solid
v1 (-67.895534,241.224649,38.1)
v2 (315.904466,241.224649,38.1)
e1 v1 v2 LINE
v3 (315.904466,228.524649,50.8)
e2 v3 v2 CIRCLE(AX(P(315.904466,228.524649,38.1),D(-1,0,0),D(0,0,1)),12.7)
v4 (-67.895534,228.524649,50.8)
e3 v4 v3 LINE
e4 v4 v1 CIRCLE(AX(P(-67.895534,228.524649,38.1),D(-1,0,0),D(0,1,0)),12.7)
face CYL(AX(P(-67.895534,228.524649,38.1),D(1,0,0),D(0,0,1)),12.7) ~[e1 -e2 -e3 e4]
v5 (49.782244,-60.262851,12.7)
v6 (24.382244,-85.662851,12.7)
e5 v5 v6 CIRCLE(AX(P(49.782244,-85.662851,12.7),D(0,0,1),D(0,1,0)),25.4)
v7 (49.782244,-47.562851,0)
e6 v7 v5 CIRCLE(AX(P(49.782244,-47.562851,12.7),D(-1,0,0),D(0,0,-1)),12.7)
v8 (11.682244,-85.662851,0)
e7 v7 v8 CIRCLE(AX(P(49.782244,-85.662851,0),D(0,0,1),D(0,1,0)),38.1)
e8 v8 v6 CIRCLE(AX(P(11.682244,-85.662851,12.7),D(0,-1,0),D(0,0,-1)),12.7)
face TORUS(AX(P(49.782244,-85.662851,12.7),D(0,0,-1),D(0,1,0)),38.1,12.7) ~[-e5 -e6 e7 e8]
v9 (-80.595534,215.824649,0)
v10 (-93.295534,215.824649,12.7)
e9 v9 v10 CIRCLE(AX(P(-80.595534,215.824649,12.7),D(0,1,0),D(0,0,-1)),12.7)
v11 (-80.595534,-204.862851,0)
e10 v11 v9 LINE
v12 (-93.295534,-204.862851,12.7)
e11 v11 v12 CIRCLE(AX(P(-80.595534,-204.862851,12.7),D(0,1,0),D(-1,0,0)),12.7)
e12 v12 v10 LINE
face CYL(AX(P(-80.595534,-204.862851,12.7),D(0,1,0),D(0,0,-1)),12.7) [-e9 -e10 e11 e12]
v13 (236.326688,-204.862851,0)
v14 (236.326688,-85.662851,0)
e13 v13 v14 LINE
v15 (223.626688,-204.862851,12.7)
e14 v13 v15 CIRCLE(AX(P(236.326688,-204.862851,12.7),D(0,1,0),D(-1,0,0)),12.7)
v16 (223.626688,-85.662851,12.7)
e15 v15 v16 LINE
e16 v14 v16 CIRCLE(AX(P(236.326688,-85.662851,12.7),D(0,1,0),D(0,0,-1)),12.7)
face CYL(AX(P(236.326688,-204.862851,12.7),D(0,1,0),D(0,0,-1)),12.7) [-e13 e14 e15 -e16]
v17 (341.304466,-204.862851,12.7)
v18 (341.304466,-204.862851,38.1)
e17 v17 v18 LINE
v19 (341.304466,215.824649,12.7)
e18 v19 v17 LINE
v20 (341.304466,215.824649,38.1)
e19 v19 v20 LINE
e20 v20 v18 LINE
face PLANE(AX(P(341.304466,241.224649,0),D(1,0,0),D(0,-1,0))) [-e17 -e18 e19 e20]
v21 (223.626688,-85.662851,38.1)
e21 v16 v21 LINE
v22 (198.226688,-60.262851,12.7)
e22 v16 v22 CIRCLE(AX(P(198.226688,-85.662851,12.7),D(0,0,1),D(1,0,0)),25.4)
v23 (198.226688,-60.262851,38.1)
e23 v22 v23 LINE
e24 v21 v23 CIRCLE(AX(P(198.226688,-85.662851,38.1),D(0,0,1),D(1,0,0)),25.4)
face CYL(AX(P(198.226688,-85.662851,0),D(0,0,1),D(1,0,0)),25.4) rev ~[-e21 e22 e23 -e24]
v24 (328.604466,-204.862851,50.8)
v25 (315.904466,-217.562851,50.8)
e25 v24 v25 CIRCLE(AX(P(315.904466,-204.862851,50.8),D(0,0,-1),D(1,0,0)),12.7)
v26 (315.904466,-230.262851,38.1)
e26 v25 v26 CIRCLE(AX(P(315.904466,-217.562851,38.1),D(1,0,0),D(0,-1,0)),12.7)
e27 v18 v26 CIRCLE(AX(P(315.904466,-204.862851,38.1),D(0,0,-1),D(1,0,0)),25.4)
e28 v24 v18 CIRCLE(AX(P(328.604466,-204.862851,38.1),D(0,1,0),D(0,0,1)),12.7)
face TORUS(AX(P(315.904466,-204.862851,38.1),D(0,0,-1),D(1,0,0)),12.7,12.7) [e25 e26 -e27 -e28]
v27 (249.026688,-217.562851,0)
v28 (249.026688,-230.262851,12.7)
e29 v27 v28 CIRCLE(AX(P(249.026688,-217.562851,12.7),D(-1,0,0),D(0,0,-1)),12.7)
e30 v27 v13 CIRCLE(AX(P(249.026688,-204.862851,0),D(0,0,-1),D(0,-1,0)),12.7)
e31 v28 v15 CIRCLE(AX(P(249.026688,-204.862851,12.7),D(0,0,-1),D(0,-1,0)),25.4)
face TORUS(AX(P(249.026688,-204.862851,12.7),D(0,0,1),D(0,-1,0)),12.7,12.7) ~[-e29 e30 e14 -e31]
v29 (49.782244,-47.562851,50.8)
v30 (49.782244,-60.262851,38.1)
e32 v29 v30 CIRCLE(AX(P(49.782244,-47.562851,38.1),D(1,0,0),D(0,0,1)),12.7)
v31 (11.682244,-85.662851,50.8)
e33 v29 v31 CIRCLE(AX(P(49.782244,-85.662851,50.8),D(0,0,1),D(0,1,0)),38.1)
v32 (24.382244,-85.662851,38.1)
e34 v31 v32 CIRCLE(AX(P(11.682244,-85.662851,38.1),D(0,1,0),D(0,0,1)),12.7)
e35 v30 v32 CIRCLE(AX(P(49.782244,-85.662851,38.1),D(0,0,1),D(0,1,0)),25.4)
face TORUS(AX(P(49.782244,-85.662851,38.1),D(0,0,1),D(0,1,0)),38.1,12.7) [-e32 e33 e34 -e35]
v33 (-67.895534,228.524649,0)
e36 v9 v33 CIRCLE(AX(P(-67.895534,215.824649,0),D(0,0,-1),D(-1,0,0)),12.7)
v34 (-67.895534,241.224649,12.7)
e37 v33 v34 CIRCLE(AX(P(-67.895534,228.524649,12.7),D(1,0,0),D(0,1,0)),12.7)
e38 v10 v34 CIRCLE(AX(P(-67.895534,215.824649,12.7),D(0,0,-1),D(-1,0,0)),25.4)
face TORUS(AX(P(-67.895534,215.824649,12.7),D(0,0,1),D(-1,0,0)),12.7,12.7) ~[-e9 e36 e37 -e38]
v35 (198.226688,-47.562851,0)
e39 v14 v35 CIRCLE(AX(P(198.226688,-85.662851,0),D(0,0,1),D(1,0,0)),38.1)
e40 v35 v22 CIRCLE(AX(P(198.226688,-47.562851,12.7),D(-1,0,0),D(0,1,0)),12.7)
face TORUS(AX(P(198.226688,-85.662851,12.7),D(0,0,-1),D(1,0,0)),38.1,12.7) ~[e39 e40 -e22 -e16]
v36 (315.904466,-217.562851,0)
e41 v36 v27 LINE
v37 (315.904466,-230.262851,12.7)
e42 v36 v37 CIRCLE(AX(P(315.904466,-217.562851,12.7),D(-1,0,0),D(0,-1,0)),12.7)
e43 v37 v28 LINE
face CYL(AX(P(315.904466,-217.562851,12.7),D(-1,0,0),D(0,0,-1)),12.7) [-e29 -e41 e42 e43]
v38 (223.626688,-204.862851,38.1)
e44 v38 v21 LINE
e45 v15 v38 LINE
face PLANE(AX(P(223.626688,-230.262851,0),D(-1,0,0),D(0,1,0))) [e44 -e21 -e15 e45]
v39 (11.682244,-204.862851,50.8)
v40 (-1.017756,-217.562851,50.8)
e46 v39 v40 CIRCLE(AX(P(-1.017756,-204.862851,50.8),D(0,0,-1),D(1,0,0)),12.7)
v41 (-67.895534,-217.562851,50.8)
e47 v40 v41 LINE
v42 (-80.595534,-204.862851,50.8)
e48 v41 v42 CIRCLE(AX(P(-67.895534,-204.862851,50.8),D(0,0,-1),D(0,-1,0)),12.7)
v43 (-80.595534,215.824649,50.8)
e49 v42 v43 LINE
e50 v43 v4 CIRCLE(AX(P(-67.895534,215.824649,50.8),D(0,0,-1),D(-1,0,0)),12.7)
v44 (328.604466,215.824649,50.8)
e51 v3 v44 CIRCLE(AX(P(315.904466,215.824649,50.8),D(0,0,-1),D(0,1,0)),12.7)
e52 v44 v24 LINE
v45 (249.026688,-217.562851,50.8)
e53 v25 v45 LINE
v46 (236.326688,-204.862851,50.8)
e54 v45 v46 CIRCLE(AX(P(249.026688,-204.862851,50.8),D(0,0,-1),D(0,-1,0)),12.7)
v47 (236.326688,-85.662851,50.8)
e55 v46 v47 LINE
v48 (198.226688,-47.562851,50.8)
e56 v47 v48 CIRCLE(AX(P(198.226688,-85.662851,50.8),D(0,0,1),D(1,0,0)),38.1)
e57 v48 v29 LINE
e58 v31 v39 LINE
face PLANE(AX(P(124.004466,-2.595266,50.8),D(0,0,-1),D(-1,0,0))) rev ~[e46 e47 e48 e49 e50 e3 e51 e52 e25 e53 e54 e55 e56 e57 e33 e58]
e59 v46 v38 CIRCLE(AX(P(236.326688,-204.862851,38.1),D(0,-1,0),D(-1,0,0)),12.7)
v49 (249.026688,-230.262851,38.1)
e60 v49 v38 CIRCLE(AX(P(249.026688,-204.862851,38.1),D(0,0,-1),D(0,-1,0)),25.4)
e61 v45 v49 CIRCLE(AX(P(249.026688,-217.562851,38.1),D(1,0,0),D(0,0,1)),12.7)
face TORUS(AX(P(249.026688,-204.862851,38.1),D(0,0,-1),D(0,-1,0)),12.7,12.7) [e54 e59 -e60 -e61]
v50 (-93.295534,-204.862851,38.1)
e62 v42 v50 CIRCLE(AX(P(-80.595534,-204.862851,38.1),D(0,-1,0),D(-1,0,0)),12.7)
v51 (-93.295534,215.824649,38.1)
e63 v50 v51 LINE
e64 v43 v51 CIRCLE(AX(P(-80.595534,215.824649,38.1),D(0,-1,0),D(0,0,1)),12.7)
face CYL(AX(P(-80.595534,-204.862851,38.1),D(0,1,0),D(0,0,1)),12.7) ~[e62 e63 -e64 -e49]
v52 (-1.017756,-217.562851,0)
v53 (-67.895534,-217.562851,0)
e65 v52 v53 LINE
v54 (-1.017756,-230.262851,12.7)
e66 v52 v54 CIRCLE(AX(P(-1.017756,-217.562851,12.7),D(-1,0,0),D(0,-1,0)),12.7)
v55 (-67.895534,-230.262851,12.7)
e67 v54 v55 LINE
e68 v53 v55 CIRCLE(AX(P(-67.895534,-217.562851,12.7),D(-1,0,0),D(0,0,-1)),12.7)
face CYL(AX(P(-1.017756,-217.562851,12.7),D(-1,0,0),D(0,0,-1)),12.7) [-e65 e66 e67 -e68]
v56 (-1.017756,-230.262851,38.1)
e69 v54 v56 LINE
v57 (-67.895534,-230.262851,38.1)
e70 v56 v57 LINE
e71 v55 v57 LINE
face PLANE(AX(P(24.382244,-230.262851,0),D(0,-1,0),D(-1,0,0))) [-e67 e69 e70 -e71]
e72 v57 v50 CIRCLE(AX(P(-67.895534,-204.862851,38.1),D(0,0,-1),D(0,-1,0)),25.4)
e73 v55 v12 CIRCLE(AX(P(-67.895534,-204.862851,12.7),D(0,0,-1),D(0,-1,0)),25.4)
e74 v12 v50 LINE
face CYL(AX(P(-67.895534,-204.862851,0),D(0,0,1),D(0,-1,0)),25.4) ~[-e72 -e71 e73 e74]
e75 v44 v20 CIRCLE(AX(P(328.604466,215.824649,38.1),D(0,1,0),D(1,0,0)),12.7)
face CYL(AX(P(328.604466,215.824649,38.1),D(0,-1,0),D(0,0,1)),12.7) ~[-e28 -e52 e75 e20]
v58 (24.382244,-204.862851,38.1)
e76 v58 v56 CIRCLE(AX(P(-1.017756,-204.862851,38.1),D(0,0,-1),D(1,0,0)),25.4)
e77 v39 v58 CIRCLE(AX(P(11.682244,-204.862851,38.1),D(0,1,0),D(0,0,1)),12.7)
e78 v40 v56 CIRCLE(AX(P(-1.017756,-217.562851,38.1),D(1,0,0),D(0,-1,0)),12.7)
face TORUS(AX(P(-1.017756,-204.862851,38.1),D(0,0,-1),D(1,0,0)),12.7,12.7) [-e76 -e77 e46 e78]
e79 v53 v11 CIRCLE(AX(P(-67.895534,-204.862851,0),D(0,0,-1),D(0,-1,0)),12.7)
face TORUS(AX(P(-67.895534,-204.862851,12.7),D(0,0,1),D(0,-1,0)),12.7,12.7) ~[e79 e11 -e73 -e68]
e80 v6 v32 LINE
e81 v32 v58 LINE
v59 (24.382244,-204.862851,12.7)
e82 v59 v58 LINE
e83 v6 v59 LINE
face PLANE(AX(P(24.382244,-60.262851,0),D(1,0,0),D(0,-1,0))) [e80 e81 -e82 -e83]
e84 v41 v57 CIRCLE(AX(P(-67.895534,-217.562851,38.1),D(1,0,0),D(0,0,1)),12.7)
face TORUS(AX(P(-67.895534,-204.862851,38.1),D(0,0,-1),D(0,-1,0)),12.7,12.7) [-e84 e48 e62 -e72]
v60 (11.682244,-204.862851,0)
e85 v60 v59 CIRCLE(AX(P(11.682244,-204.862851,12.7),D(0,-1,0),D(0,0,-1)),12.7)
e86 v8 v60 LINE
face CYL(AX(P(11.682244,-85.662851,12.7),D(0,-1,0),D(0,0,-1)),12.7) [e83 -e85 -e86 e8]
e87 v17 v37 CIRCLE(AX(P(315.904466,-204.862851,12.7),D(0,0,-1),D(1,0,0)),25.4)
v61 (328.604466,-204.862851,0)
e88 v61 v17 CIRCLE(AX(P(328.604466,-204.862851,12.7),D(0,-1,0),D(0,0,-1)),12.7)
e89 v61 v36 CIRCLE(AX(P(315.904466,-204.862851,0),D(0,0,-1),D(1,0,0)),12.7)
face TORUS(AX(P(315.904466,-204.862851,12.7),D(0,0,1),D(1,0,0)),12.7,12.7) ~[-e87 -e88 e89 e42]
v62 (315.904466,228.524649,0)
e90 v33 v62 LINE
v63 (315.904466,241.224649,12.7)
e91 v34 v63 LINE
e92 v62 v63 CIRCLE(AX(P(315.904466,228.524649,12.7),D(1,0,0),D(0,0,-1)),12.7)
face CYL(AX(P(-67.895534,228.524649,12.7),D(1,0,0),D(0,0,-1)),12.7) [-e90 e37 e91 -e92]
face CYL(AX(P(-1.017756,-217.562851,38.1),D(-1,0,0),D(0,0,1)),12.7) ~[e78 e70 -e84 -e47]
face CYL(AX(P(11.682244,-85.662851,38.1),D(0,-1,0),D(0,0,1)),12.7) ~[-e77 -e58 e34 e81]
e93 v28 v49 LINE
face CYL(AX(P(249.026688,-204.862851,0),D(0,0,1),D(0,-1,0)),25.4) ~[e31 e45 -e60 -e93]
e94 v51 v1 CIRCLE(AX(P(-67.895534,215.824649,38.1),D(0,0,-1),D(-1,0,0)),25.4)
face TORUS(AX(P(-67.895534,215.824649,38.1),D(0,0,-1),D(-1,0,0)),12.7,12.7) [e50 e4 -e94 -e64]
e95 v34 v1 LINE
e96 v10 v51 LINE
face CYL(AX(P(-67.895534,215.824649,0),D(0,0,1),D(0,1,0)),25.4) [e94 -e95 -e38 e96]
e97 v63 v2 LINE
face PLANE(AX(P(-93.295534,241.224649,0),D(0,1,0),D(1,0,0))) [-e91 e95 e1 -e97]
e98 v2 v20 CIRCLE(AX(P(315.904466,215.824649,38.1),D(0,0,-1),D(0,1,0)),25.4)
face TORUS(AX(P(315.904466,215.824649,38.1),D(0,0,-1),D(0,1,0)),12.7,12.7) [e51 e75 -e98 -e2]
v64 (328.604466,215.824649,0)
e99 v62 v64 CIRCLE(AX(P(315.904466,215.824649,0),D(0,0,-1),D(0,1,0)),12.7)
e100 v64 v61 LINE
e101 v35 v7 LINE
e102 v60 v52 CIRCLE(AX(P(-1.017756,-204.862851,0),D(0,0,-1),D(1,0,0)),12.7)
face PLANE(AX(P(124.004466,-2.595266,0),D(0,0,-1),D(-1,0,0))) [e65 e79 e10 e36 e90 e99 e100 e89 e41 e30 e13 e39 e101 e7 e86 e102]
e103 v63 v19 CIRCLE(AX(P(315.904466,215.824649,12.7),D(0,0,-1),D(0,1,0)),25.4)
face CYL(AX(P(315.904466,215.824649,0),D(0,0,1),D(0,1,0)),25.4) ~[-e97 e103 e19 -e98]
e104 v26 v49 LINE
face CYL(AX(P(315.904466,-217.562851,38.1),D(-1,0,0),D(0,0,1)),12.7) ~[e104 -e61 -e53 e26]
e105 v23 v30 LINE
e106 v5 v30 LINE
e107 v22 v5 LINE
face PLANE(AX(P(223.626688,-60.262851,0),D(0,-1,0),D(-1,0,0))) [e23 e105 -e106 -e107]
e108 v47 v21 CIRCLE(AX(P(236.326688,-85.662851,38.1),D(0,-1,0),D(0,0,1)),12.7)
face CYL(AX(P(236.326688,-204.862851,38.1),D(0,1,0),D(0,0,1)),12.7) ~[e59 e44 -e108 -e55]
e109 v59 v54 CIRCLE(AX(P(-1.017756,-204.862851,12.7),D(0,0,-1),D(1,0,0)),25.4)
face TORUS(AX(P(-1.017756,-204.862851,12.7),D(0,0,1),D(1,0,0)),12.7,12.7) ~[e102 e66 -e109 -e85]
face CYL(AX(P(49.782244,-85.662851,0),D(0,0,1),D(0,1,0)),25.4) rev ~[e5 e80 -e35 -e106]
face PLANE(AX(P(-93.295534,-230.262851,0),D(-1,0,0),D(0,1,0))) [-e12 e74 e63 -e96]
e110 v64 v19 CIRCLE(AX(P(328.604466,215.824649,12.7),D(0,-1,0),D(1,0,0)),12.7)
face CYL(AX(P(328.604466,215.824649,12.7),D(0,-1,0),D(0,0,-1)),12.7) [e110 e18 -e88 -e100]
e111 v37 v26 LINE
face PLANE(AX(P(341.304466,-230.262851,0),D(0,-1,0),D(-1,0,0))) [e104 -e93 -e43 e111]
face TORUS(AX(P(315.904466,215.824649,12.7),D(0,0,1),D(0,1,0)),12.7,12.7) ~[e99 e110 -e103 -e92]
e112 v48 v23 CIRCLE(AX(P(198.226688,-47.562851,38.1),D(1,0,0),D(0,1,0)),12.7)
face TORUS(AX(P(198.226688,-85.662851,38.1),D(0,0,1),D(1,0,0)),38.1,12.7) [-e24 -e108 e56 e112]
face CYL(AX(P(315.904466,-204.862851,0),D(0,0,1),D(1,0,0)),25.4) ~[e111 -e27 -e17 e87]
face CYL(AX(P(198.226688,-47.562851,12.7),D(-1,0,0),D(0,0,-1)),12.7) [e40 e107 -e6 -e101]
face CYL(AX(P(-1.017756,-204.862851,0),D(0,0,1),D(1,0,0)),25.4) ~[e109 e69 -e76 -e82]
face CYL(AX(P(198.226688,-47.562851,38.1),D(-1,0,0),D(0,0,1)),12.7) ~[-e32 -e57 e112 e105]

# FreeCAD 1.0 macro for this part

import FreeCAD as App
import Part
import Sketcher
from FreeCAD import Vector
Q = App.Units.Quantity


def edges_at(feature, points):
    """Names of the edges that pass closest to the given points."""
    edges = feature.Shape.Edges
    near = lambda p: min(range(len(edges)), key=lambda i: edges[i].distToShape(Part.Vertex(*p))[0])
    return sorted({f"Edge{near(p) + 1}" for p in points})

doc = App.newDocument("Part")
body = doc.addObject("PartDesign::Body", "Body")

# Sketch on XY plane
sketch1 = body.newObject("Sketcher::SketchObject", "Sketch")
sketch1.AttachmentSupport = (doc.getObject("XY_Plane"), [""])
sketch1.MapMode = "FlatFace"
sketch1.addGeometry([
    Part.LineSegment(Vector(341, 241, 0), Vector(-93, 241, 0)),  # 0
    Part.LineSegment(Vector(-93, 241, 0), Vector(-93, -230, 0)),  # 1
    Part.LineSegment(Vector(-93, -230, 0), Vector(24, -230, 0)),  # 2
    Part.LineSegment(Vector(24, -230, 0), Vector(24, -60, 0)),  # 3
    Part.LineSegment(Vector(24, -60, 0), Vector(224, -60, 0)),  # 4
    Part.LineSegment(Vector(224, -60, 0), Vector(224, -230, 0)),  # 5
    Part.LineSegment(Vector(224, -230, 0), Vector(341, -230, 0)),  # 6
    Part.LineSegment(Vector(341, -230, 0), Vector(341, 241, 0)),  # 7
], False)
sketch1.addConstraint([
    Sketcher.Constraint("Coincident", 0, 2, 1, 1),
    Sketcher.Constraint("Coincident", 1, 2, 2, 1),
    Sketcher.Constraint("Coincident", 2, 2, 3, 1),
    Sketcher.Constraint("Coincident", 3, 2, 4, 1),
    Sketcher.Constraint("Coincident", 4, 2, 5, 1),
    Sketcher.Constraint("Coincident", 5, 2, 6, 1),
    Sketcher.Constraint("Coincident", 6, 2, 7, 1),
    Sketcher.Constraint("Coincident", 7, 2, 0, 1),
    Sketcher.Constraint("Horizontal", 0),
    Sketcher.Constraint("Vertical", 1),
    Sketcher.Constraint("Horizontal", 2),
    Sketcher.Constraint("Vertical", 3),
    Sketcher.Constraint("Horizontal", 4),
    Sketcher.Constraint("Vertical", 5),
    Sketcher.Constraint("Horizontal", 6),
    Sketcher.Constraint("Vertical", 7),
    Sketcher.Constraint("Horizontal", 2, 2, 5, 2),
    Sketcher.Constraint("Equal", 2, 6),
    Sketcher.Constraint("DistanceY", 1, 2, 1, 1, Q("18.5625 in")),
    Sketcher.Constraint("DistanceX", 0, 2, 0, 1, 434.6),
    Sketcher.Constraint("DistanceY", 3, 1, 3, 2, 170.0),
    Sketcher.Constraint("DistanceX", 2, 1, 2, 2, 117.677778),
    Sketcher.Constraint("DistanceY", -1, 1, 0, 2, 241.224649),
    Sketcher.Constraint("DistanceX", 0, 2, -1, 1, 93.295534),
])
pad1 = body.newObject("PartDesign::Pad", "Pad")
pad1.Profile = sketch1
pad1.Length = Q("2 in")
doc.recompute()

fillet = body.newObject("PartDesign::Fillet", "Fillet")
fillet.Base = (pad1, edges_at(pad1, [
    (-93.296, 241.225, 25.4),
    (341.304, 241.225, 25.4),
    (341.304, -230.263, 25.4),
    (223.627, -230.263, 25.4),
    (223.627, -60.263, 25.4),
    (24.382, -60.263, 25.4),
    (24.382, -230.263, 25.4),
    (-93.296, -230.263, 25.4),
]))
fillet.Radius = Q("1 in")
doc.recompute()

fillet2 = body.newObject("PartDesign::Fillet", "Fillet001")
fillet2.Base = (fillet, edges_at(fillet, [
    (24.382, -145.263, 0),
    (24.382, -145.263, 50.8),
    (-93.296, 5.481, 0),
    (124.004, 241.225, 0),
    (341.304, 5.481, 0),
    (282.466, -230.263, 0),
    (223.627, -145.263, 0),
    (124.004, -60.263, 0),
    (-34.457, -230.263, 0),
    (231.066, -222.823, 0),
    (333.865, -222.823, 0),
    (333.865, 233.785, 0),
    (-85.856, 233.785, 0),
    (-85.856, -222.823, 0),
    (16.943, -222.823, 0),
    (-34.457, -230.263, 50.8),
    (-93.296, 5.481, 50.8),
    (124.004, -60.263, 50.8),
    (223.627, -145.263, 50.8),
    (282.466, -230.263, 50.8),
    (341.304, 5.481, 50.8),
    (124.004, 241.225, 50.8),
    (231.066, -222.823, 50.8),
    (333.865, -222.823, 50.8),
    (333.865, 233.785, 50.8),
    (-85.856, 233.785, 50.8),
    (-85.856, -222.823, 50.8),
    (16.943, -222.823, 50.8),
    (216.187, -67.702, 0),
    (216.187, -67.702, 50.8),
    (31.822, -67.702, 0),
    (31.822, -67.702, 50.8),
]))
fillet2.Radius = Q("0.5 in")

doc.recompute()
